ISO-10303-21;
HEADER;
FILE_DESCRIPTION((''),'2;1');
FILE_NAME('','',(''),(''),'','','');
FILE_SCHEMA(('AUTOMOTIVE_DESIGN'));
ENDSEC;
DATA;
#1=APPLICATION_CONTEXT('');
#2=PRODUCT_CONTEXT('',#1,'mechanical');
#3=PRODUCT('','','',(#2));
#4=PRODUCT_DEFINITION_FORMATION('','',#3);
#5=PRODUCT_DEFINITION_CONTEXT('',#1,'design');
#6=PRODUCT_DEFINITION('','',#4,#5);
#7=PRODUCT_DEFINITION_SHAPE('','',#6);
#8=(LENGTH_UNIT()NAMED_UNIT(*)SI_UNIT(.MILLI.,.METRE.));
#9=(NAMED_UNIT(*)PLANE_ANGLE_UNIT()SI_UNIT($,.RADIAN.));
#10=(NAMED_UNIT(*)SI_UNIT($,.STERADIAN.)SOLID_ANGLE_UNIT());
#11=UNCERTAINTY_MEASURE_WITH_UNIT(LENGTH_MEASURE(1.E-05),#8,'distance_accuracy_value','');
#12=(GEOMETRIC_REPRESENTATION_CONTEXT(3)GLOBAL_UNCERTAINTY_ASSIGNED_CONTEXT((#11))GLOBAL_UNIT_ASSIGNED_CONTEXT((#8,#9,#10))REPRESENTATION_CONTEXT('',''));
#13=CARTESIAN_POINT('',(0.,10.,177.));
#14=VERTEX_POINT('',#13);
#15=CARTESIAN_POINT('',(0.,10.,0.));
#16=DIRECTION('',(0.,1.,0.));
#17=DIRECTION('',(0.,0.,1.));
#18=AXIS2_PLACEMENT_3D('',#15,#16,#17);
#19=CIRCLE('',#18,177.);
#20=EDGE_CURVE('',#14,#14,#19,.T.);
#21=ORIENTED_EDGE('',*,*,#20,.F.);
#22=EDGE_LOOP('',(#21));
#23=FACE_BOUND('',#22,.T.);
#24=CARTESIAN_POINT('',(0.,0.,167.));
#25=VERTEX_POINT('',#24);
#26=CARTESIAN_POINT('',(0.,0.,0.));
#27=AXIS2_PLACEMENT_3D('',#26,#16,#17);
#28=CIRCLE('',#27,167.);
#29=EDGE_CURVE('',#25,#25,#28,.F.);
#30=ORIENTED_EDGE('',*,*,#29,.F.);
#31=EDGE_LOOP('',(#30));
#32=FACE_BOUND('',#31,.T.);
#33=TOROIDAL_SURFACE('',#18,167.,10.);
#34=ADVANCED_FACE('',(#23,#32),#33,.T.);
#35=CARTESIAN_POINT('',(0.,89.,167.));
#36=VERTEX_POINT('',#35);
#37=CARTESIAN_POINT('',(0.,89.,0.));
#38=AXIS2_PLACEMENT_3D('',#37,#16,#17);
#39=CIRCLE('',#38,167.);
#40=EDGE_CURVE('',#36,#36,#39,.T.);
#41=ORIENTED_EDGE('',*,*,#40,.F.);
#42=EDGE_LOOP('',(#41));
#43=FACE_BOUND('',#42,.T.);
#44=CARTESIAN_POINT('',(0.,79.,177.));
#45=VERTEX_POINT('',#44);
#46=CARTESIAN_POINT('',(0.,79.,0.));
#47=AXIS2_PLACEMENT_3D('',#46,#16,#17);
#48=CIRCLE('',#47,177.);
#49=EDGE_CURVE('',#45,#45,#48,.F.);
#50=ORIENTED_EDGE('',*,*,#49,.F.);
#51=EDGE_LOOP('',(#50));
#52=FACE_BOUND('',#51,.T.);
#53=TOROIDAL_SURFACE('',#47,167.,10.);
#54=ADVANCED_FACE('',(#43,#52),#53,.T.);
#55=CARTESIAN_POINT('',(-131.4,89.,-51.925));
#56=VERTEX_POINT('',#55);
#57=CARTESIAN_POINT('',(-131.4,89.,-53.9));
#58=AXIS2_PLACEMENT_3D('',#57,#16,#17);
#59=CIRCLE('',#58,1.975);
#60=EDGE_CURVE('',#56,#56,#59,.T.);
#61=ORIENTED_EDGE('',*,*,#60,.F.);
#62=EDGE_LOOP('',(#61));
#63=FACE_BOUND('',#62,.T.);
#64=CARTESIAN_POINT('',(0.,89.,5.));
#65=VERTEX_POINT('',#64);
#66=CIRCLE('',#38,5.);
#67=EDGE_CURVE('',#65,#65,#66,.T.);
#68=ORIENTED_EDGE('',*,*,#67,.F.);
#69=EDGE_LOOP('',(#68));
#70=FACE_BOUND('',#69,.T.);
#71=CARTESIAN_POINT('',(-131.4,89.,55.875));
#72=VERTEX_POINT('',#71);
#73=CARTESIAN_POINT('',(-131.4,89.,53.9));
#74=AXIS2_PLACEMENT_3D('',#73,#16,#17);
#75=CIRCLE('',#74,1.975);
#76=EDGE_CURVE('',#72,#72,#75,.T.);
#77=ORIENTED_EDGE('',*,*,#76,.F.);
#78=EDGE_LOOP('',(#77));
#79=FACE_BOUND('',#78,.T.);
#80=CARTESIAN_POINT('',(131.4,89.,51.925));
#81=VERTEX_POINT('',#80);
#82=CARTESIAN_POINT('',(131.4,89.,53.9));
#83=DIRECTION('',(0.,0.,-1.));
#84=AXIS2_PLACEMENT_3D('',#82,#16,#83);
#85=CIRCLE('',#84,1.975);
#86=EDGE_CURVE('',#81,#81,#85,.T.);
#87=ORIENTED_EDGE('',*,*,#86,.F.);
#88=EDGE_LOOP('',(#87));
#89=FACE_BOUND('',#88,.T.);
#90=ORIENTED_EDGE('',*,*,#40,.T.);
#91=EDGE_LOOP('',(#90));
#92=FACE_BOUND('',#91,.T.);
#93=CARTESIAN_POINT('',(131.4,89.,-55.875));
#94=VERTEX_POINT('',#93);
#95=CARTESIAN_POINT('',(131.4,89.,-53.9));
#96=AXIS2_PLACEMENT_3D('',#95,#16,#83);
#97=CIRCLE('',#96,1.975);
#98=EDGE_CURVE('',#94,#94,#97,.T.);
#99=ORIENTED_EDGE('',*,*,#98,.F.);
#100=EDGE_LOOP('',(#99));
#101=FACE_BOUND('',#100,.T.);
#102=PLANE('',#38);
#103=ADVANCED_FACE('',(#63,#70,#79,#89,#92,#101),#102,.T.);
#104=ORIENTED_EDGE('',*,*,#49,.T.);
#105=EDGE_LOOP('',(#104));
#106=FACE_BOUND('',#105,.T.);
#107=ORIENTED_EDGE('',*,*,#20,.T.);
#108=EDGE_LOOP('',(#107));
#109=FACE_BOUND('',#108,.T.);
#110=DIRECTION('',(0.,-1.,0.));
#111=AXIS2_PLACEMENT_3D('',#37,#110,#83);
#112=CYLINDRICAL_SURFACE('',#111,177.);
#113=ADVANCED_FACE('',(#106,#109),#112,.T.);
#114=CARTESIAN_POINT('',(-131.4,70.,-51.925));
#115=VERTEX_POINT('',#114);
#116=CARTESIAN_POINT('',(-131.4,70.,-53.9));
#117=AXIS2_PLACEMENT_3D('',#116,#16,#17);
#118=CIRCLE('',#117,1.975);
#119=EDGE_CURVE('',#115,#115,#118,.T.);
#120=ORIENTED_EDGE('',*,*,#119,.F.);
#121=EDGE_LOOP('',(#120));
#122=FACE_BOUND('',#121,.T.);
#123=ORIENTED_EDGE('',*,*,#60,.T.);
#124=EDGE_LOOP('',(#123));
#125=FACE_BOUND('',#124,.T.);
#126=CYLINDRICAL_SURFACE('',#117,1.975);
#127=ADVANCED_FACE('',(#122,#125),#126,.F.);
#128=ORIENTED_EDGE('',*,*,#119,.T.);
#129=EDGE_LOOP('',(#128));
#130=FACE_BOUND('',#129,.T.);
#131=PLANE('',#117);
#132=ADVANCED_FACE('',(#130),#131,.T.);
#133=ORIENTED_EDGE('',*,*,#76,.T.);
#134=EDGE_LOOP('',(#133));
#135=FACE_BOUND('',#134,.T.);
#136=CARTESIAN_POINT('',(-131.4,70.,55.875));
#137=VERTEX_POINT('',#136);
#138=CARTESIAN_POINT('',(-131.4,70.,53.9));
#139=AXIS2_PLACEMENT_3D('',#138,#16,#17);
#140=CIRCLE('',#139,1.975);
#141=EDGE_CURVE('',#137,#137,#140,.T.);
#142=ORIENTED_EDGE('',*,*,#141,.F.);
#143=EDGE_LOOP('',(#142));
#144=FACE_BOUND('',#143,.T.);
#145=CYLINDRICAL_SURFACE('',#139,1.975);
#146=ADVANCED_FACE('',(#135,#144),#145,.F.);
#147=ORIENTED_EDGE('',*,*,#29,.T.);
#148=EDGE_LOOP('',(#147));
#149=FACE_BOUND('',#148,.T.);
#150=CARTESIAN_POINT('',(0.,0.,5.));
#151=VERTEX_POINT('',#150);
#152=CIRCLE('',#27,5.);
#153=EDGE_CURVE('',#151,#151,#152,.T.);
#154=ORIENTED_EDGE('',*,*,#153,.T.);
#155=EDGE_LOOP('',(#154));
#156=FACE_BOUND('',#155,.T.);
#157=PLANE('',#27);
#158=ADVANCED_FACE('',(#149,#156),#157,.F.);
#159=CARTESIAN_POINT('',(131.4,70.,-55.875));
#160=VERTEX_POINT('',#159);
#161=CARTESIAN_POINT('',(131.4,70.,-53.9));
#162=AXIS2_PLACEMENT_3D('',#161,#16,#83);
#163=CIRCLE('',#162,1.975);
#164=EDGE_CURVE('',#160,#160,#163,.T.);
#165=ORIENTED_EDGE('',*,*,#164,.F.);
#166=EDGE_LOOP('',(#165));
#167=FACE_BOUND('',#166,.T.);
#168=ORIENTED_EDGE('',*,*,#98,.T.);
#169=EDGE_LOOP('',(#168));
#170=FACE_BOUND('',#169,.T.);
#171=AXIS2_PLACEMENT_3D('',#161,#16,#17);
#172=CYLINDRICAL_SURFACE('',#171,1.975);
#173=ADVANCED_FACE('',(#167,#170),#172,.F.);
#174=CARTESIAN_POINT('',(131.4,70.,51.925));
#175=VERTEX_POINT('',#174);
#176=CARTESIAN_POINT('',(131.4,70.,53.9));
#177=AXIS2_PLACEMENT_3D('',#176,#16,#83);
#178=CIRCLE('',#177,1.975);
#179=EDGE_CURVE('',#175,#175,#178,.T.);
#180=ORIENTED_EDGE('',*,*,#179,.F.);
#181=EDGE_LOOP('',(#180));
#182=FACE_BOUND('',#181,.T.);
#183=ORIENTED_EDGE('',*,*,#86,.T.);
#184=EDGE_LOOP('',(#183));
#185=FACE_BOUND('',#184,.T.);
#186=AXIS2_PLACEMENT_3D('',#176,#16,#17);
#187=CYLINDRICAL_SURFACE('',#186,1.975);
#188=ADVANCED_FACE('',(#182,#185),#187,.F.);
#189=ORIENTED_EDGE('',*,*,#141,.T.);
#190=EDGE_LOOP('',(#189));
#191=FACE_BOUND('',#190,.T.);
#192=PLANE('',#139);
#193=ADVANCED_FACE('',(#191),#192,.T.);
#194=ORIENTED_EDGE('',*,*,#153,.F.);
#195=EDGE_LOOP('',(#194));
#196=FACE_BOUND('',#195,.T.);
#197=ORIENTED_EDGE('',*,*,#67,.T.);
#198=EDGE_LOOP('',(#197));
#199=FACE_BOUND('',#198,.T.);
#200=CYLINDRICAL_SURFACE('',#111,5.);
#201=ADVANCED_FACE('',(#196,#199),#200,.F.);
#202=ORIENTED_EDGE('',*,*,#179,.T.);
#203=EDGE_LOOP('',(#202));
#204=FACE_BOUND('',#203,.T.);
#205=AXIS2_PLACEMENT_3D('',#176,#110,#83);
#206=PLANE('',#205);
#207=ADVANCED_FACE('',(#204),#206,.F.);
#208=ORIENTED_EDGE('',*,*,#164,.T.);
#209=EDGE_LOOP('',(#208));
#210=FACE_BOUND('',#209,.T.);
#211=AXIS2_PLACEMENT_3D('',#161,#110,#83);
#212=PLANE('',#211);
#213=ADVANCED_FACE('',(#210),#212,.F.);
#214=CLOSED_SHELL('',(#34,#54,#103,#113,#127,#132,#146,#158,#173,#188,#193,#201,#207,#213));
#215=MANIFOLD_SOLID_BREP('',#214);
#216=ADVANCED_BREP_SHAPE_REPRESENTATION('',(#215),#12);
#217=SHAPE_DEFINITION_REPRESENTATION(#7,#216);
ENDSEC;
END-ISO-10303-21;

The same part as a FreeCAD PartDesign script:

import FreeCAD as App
import Part
import Sketcher


def edges_at(feature, points):
    """Names of the edges that pass closest to the given points."""
    edges = feature.Shape.Edges
    near = lambda p: min(range(len(edges)), key=lambda i: edges[i].distToShape(Part.Vertex(*p))[0])
    return sorted({f"Edge{near(p) + 1}" for p in points})

doc = App.newDocument("Part")
body = doc.addObject("PartDesign::Body", "Body")

# Sketch on XZ plane
sketch1 = body.newObject("Sketcher::SketchObject", "Sketch")
sketch1.AttachmentSupport = (doc.getObject("XZ_Plane"), [""])
sketch1.MapMode = "FlatFace"
sketch1.addGeometry([
    Part.Circle(App.Vector(0, 0, 0), App.Vector(0, 0, 1), 177),
    Part.Circle(App.Vector(0, 0, 0), App.Vector(0, 0, 1), 5),
], False)
sketch1.addConstraint([
    Sketcher.Constraint("Coincident", 0, 3, -1, 1),
    Sketcher.Constraint("Coincident", 1, 3, -1, 1),
    Sketcher.Constraint("Diameter", 0, 354.0),
    Sketcher.Constraint("Diameter", 1, 10.0),
])
pad1 = body.newObject("PartDesign::Pad", "Pad")
pad1.Profile = sketch1
pad1.Length = 89
pad1.Reversed = True

# Sketch on XZ plane
sketch2 = body.newObject("Sketcher::SketchObject", "Sketch001")
sketch2.AttachmentSupport = (doc.getObject("XZ_Plane"), [""])
sketch2.MapMode = "FlatFace"
sketch2.AttachmentOffset = App.Placement(App.Vector(0, 0, -89), App.Rotation())
sketch2.addGeometry([
    Part.Circle(App.Vector(-131.4, -53.9, 0), App.Vector(0, 0, 1), 1.975),
    Part.Circle(App.Vector(-131.4, 53.9, 0), App.Vector(0, 0, 1), 1.975),
    Part.Circle(App.Vector(131.4, 53.9, 0), App.Vector(0, 0, 1), 1.975),
    Part.Circle(App.Vector(131.4, -53.9, 0), App.Vector(0, 0, 1), 1.975),
], False)
sketch2.addConstraint([
    Sketcher.Constraint("Equal", 0, 1),
    Sketcher.Constraint("Equal", 1, 2),
    Sketcher.Constraint("Equal", 2, 3),
    Sketcher.Constraint("Symmetric", 0, 3, 2, 3, -1, 1),
    Sketcher.Constraint("Symmetric", 1, 3, 3, 3, -1, 1),
    Sketcher.Constraint("Symmetric", 1, 3, 2, 3, -2),
    Sketcher.Constraint("Diameter", 0, 3.95),
    Sketcher.Constraint("DistanceX", 0, 3, -1, 1, 131.4),
    Sketcher.Constraint("DistanceY", 0, 3, -1, 1, 53.9),
])
pocket1 = body.newObject("PartDesign::Pocket", "Pocket")
pocket1.Profile = sketch2
pocket1.Length = 19
pocket1.Reversed = True
doc.recompute()

fillet = body.newObject("PartDesign::Fillet", "Fillet")
fillet.Base = (pocket1, edges_at(pocket1, [(-177, 0, 0), (-177, 89, 0)]))
fillet.Radius = 10

doc.recompute()
